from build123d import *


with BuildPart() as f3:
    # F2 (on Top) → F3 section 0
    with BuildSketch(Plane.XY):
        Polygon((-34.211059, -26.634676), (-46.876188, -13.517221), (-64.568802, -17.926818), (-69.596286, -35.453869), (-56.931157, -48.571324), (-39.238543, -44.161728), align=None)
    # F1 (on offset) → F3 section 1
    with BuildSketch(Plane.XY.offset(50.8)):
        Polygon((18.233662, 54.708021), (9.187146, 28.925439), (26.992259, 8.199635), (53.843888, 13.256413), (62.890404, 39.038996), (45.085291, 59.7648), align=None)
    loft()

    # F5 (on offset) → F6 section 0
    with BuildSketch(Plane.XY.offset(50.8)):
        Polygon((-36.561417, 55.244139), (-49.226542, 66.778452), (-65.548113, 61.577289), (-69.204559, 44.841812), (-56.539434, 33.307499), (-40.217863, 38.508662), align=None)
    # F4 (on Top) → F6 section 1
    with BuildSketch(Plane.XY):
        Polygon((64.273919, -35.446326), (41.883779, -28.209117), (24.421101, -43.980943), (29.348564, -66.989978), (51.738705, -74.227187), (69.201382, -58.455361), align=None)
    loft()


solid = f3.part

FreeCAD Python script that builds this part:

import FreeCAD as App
import Part
import Sketcher
from FreeCAD import Vector


def add_polygon(sketch, points):
    """Adds a closed chain of lines whose ends are joined by coincident constraints."""
    first, n = sketch.GeometryCount, len(points)
    for a, b in zip(points, points[1:] + points[:1]):
        sketch.addGeometry(Part.LineSegment(App.Vector(*a, 0), App.Vector(*b, 0)), False)
    for i in range(n):
        sketch.addConstraint(Sketcher.Constraint("Coincident", first + i, 2, first + (i + 1) % n, 1))

doc = App.newDocument("Part")
body = doc.addObject("PartDesign::Body", "Body")

# Sketch on XY plane
sketch1 = doc.addObject("Sketcher::SketchObject", "Sketch")
body.addObject(sketch1)
sketch1.AttachmentSupport = (doc.XY_Plane, [""])
sketch1.MapMode = "FlatFace"
add_polygon(sketch1, [(-34, -27), (-47, -14), (-65, -18), (-70, -35), (-57, -49), (-39, -44)])  # lines 0-5
sketch1.addConstraint([
    Sketcher.Constraint("Parallel", 0, 3),
    Sketcher.Constraint("Parallel", 1, 4),
    Sketcher.Constraint("Parallel", 2, 5),
    Sketcher.Constraint("Equal", 0, 1),
    Sketcher.Constraint("Equal", 1, 2),
    Sketcher.Constraint("Equal", 2, 3),
    Sketcher.Constraint("DistanceX", 2, 2, 0, 2, 22.720098),
    Sketcher.Constraint("DistanceY", 0, 2, -1, 1, 13.517221),
    Sketcher.Constraint("DistanceY", 1, 2, -1, 1, 17.926818),
    Sketcher.Constraint("DistanceY", 2, 2, -1, 1, 35.453869),
    Sketcher.Constraint("DistanceX", 5, 2, -1, 1, 34.211059),
    Sketcher.Constraint("DistanceX", 2, 2, 3, 2, 12.665129),
])

# Sketch on XY plane
sketch2 = doc.addObject("Sketcher::SketchObject", "Sketch001")
body.addObject(sketch2)
sketch2.AttachmentSupport = (doc.XY_Plane, [""])
sketch2.MapMode = "FlatFace"
sketch2.AttachmentOffset = App.Placement(Vector(0, 0, 50.8), App.Rotation())
add_polygon(sketch2, [(18, 55), (9, 29), (27, 8), (54, 13), (63, 39), (45, 60)])  # lines 0-5
sketch2.addConstraint([
    Sketcher.Constraint("Parallel", 0, 3),
    Sketcher.Constraint("Parallel", 1, 4),
    Sketcher.Constraint("Parallel", 2, 5),
    Sketcher.Constraint("Equal", 0, 1),
    Sketcher.Constraint("Equal", 1, 2),
    Sketcher.Constraint("Equal", 2, 3),
    Sketcher.Constraint("DistanceY", -1, 1, 4, 2, 59.7648),
    Sketcher.Constraint("DistanceY", -1, 1, 0, 2, 28.925439),
    Sketcher.Constraint("DistanceX", -1, 1, 1, 2, 26.992259),
    Sketcher.Constraint("DistanceX", -1, 1, 4, 2, 45.085291),
    Sketcher.Constraint("DistanceX", -1, 1, 5, 2, 18.233662),
    Sketcher.Constraint("DistanceY", -1, 1, 5, 2, 54.708021),
])

additiveloft = doc.addObject("PartDesign::AdditiveLoft", "AdditiveLoft")
body.addObject(additiveloft)
additiveloft.Profile = sketch1
additiveloft.Sections = [sketch2]

# Sketch on XY plane
sketch3 = doc.addObject("Sketcher::SketchObject", "Sketch002")
body.addObject(sketch3)
sketch3.AttachmentSupport = (doc.XY_Plane, [""])
sketch3.MapMode = "FlatFace"
sketch3.AttachmentOffset = App.Placement(Vector(0, 0, 50.8), App.Rotation())
add_polygon(sketch3, [(-37, 55), (-49, 67), (-66, 62), (-69, 45), (-57, 33), (-40, 39)])  # lines 0-5
sketch3.addConstraint([
    Sketcher.Constraint("Parallel", 0, 3),
    Sketcher.Constraint("Parallel", 1, 4),
    Sketcher.Constraint("Parallel", 2, 5),
    Sketcher.Constraint("Equal", 0, 1),
    Sketcher.Constraint("Equal", 1, 2),
    Sketcher.Constraint("Equal", 2, 3),
    Sketcher.Constraint("DistanceY", -1, 1, 3, 2, 33.307499),
    Sketcher.Constraint("Distance", 0, 17.130259),
    Sketcher.Constraint("DistanceY", -1, 1, 0, 2, 66.778452),
    Sketcher.Constraint("DistanceY", -1, 1, 1, 2, 61.577289),
    Sketcher.Constraint("DistanceX", 2, 2, -1, 1, 69.204559),
    Sketcher.Constraint("DistanceY", -1, 1, 2, 2, 44.841812),
])

# Sketch on XY plane
sketch4 = doc.addObject("Sketcher::SketchObject", "Sketch003")
body.addObject(sketch4)
sketch4.AttachmentSupport = (doc.XY_Plane, [""])
sketch4.MapMode = "FlatFace"
add_polygon(sketch4, [(64, -35), (42, -28), (24, -44), (29, -67), (52, -74), (69, -58)])  # lines 0-5
sketch4.addConstraint([
    Sketcher.Constraint("Parallel", 0, 3),
    Sketcher.Constraint("Parallel", 1, 4),
    Sketcher.Constraint("Parallel", 2, 5),
    Sketcher.Constraint("Equal", 0, 1),
    Sketcher.Constraint("Equal", 1, 2),
    Sketcher.Constraint("Equal", 2, 3),
    Sketcher.Constraint("DistanceX", -1, 1, 1, 2, 24.421101),
    Sketcher.Constraint("DistanceX", -1, 1, 0, 2, 41.883779),
    Sketcher.Constraint("DistanceX", -1, 1, 4, 2, 69.201382),
    Sketcher.Constraint("DistanceY", 4, 2, -1, 1, 58.455361),
    Sketcher.Constraint("DistanceX", -1, 1, 5, 2, 64.273919),
    Sketcher.Constraint("DistanceY", 2, 2, 0, 2, 38.780861),
])

additiveloft2 = doc.addObject("PartDesign::AdditiveLoft", "AdditiveLoft001")
body.addObject(additiveloft2)
additiveloft2.Profile = sketch3
additiveloft2.Sections = [sketch4]

doc.recompute()
